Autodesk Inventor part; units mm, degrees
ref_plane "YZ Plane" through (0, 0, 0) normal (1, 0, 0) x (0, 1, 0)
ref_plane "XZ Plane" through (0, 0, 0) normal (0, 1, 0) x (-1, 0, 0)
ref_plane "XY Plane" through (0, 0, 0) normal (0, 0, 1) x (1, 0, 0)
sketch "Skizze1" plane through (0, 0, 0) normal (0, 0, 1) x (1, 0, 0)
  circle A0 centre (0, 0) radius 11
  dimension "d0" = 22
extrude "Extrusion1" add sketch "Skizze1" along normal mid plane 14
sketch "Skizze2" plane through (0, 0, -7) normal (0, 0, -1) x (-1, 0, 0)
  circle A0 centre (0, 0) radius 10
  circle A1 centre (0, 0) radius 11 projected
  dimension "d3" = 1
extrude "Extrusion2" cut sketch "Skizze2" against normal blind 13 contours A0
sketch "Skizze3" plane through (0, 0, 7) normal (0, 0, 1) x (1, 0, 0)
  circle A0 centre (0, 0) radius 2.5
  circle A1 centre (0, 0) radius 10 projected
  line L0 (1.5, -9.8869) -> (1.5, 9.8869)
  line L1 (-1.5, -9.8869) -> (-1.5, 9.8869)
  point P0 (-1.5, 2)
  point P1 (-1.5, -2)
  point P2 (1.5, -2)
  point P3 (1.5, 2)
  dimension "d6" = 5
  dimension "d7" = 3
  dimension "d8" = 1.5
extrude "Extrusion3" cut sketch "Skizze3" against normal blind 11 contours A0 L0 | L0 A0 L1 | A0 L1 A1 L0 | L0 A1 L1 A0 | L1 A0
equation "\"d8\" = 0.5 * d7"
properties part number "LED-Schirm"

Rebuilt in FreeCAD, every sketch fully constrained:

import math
import FreeCAD as App
import Part
import Sketcher
from FreeCAD import Vector

doc = App.newDocument("Part")
body = doc.addObject("PartDesign::Body", "Body")

# Sketch on XY plane
sketch1 = body.newObject("Sketcher::SketchObject", "Sketch")
sketch1.AttachmentSupport = (doc.getObject("XY_Plane"), [""])
sketch1.MapMode = "FlatFace"
sketch1.addGeometry(Part.Circle(Vector(0, 0, 0), Vector(0, 0, 1), 11), False)
sketch1.addConstraint([
    Sketcher.Constraint("Coincident", 0, 3, -1, 1),
    Sketcher.Constraint("Diameter", 0, 22.0),
])
pad1 = body.newObject("PartDesign::Pad", "Pad")
pad1.Profile = sketch1
pad1.Length = 14
pad1.Midplane = True

# Sketch on XY plane
sketch2 = body.newObject("Sketcher::SketchObject", "Sketch001")
sketch2.AttachmentSupport = (doc.getObject("XY_Plane"), [""])
sketch2.MapMode = "FlatFace"
sketch2.AttachmentOffset = App.Placement(Vector(0, 0, -7), App.Rotation())
sketch2.addGeometry(Part.Circle(Vector(0, 0, 0), Vector(0, 0, 1), 10), False)
sketch2.addConstraint([
    Sketcher.Constraint("Coincident", 0, 3, -1, 1),
    Sketcher.Constraint("Diameter", 0, 20.0),
])
pocket1 = body.newObject("PartDesign::Pocket", "Pocket")
pocket1.Profile = sketch2
pocket1.Length = 13
pocket1.Reversed = True

# Sketch on XY plane
sketch3 = body.newObject("Sketcher::SketchObject", "Sketch002")
sketch3.AttachmentSupport = (doc.getObject("XY_Plane"), [""])
sketch3.MapMode = "FlatFace"
sketch3.AttachmentOffset = App.Placement(Vector(0, 0, 7), App.Rotation())
sketch3.addGeometry([
    Part.ArcOfCircle(Part.Circle(Vector(0, 0, 0), Vector(0, 0, 1), 2.5), math.radians(-53), math.radians(53)),  # 0
    Part.LineSegment(Vector(1.5, 2, 0), Vector(1.5, 9.9, 0)),  # 1
    Part.ArcOfCircle(Part.Circle(Vector(0, 0, 0), Vector(0, 0, 1), 10), math.radians(81.37), math.radians(98.63)),  # 2
    Part.LineSegment(Vector(-1.5, 9.9, 0), Vector(-1.5, 2, 0)),  # 3
    Part.ArcOfCircle(Part.Circle(Vector(0, 0, 0), Vector(0, 0, 1), 2.5), math.radians(127), math.radians(233)),  # 4
    Part.LineSegment(Vector(-1.5, -2, 0), Vector(-1.5, -9.9, 0)),  # 5
    Part.ArcOfCircle(Part.Circle(Vector(0, 0, 0), Vector(0, 0, 1), 10), math.radians(-98.63), math.radians(-81.37)),  # 6
    Part.LineSegment(Vector(1.5, -9.9, 0), Vector(1.5, -2, 0)),  # 7
], False)
sketch3.addConstraint([
    Sketcher.Constraint("Coincident", 0, 2, 1, 1),
    Sketcher.Constraint("Coincident", 1, 2, 2, 1),
    Sketcher.Constraint("Coincident", 2, 2, 3, 1),
    Sketcher.Constraint("Coincident", 3, 2, 4, 1),
    Sketcher.Constraint("Coincident", 4, 2, 5, 1),
    Sketcher.Constraint("Coincident", 5, 2, 6, 1),
    Sketcher.Constraint("Coincident", 6, 2, 7, 1),
    Sketcher.Constraint("Coincident", 7, 2, 0, 1),
    Sketcher.Constraint("Vertical", 1),
    Sketcher.Constraint("Vertical", 3),
    Sketcher.Constraint("Vertical", 5),
    Sketcher.Constraint("Vertical", 7),
    Sketcher.Constraint("Coincident", 0, 3, -1, 1),
    Sketcher.Constraint("Coincident", 2, 3, -1, 1),
    Sketcher.Constraint("Coincident", 4, 3, -1, 1),
    Sketcher.Constraint("Coincident", 6, 3, -1, 1),
    Sketcher.Constraint("Equal", 0, 4),
    Sketcher.Constraint("Equal", 2, 6),
    Sketcher.Constraint("Horizontal", 1, 2, 2, 2),
    Sketcher.Constraint("Horizontal", 5, 2, 6, 2),
    Sketcher.Constraint("Vertical", 3, 2, 4, 2),
    Sketcher.Constraint("Radius", 0, 2.5),
    Sketcher.Constraint("Radius", 2, 10.0),
    Sketcher.Constraint("DistanceX", 2, 2, 1, 2, 3.0),
])
pocket2 = body.newObject("PartDesign::Pocket", "Pocket001")
pocket2.Profile = sketch3
pocket2.Length = 11

doc.recompute()
